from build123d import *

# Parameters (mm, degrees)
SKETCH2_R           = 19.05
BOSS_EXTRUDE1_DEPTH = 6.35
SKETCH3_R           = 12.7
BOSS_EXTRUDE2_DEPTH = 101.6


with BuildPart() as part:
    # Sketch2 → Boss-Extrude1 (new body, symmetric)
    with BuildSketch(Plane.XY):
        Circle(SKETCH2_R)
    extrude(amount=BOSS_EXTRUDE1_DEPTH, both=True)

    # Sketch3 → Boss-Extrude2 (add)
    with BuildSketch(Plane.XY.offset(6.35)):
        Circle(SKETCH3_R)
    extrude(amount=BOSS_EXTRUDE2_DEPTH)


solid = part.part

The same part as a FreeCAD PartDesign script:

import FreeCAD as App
import Part
import Sketcher
from FreeCAD import Vector
Q = App.Units.Quantity

doc = App.newDocument("Part")
body = doc.addObject("PartDesign::Body", "Body")

sketch1 = body.newObject("Sketcher::SketchObject", "Sketch")
sketch1.AttachmentSupport = (doc.getObject("XY_Plane"), [""])
sketch1.MapMode = "FlatFace"
sketch1.addGeometry(Part.Circle(Vector(0, 0, 0), Vector(0, 0, 1), 19), False)
sketch1.addConstraint(Sketcher.Constraint("Coincident", 0, 3, -1, 1))
sketch1.addConstraint(Sketcher.Constraint("Diameter", 0, Q("1.5 in")))
pad1 = body.newObject("PartDesign::Pad", "Pad")
pad1.Profile = sketch1
pad1.Length = Q("0.5 in")
pad1.Midplane = True

sketch2 = body.newObject("Sketcher::SketchObject", "Sketch001")
sketch2.AttachmentSupport = (doc.getObject("XY_Plane"), [""])
sketch2.MapMode = "FlatFace"
sketch2.AttachmentOffset = App.Placement(Vector(0, 0, 0.25 * 25.4), App.Rotation())
sketch2.addGeometry(Part.Circle(Vector(0, 0, 0), Vector(0, 0, 1), 13), False)
sketch2.addConstraint(Sketcher.Constraint("Coincident", 0, 3, -1, 1))
sketch2.addConstraint(Sketcher.Constraint("Diameter", 0, Q("1 in")))
pad2 = body.newObject("PartDesign::Pad", "Pad001")
pad2.Profile = sketch2
pad2.Length = Q("4 in")

doc.recompute()
